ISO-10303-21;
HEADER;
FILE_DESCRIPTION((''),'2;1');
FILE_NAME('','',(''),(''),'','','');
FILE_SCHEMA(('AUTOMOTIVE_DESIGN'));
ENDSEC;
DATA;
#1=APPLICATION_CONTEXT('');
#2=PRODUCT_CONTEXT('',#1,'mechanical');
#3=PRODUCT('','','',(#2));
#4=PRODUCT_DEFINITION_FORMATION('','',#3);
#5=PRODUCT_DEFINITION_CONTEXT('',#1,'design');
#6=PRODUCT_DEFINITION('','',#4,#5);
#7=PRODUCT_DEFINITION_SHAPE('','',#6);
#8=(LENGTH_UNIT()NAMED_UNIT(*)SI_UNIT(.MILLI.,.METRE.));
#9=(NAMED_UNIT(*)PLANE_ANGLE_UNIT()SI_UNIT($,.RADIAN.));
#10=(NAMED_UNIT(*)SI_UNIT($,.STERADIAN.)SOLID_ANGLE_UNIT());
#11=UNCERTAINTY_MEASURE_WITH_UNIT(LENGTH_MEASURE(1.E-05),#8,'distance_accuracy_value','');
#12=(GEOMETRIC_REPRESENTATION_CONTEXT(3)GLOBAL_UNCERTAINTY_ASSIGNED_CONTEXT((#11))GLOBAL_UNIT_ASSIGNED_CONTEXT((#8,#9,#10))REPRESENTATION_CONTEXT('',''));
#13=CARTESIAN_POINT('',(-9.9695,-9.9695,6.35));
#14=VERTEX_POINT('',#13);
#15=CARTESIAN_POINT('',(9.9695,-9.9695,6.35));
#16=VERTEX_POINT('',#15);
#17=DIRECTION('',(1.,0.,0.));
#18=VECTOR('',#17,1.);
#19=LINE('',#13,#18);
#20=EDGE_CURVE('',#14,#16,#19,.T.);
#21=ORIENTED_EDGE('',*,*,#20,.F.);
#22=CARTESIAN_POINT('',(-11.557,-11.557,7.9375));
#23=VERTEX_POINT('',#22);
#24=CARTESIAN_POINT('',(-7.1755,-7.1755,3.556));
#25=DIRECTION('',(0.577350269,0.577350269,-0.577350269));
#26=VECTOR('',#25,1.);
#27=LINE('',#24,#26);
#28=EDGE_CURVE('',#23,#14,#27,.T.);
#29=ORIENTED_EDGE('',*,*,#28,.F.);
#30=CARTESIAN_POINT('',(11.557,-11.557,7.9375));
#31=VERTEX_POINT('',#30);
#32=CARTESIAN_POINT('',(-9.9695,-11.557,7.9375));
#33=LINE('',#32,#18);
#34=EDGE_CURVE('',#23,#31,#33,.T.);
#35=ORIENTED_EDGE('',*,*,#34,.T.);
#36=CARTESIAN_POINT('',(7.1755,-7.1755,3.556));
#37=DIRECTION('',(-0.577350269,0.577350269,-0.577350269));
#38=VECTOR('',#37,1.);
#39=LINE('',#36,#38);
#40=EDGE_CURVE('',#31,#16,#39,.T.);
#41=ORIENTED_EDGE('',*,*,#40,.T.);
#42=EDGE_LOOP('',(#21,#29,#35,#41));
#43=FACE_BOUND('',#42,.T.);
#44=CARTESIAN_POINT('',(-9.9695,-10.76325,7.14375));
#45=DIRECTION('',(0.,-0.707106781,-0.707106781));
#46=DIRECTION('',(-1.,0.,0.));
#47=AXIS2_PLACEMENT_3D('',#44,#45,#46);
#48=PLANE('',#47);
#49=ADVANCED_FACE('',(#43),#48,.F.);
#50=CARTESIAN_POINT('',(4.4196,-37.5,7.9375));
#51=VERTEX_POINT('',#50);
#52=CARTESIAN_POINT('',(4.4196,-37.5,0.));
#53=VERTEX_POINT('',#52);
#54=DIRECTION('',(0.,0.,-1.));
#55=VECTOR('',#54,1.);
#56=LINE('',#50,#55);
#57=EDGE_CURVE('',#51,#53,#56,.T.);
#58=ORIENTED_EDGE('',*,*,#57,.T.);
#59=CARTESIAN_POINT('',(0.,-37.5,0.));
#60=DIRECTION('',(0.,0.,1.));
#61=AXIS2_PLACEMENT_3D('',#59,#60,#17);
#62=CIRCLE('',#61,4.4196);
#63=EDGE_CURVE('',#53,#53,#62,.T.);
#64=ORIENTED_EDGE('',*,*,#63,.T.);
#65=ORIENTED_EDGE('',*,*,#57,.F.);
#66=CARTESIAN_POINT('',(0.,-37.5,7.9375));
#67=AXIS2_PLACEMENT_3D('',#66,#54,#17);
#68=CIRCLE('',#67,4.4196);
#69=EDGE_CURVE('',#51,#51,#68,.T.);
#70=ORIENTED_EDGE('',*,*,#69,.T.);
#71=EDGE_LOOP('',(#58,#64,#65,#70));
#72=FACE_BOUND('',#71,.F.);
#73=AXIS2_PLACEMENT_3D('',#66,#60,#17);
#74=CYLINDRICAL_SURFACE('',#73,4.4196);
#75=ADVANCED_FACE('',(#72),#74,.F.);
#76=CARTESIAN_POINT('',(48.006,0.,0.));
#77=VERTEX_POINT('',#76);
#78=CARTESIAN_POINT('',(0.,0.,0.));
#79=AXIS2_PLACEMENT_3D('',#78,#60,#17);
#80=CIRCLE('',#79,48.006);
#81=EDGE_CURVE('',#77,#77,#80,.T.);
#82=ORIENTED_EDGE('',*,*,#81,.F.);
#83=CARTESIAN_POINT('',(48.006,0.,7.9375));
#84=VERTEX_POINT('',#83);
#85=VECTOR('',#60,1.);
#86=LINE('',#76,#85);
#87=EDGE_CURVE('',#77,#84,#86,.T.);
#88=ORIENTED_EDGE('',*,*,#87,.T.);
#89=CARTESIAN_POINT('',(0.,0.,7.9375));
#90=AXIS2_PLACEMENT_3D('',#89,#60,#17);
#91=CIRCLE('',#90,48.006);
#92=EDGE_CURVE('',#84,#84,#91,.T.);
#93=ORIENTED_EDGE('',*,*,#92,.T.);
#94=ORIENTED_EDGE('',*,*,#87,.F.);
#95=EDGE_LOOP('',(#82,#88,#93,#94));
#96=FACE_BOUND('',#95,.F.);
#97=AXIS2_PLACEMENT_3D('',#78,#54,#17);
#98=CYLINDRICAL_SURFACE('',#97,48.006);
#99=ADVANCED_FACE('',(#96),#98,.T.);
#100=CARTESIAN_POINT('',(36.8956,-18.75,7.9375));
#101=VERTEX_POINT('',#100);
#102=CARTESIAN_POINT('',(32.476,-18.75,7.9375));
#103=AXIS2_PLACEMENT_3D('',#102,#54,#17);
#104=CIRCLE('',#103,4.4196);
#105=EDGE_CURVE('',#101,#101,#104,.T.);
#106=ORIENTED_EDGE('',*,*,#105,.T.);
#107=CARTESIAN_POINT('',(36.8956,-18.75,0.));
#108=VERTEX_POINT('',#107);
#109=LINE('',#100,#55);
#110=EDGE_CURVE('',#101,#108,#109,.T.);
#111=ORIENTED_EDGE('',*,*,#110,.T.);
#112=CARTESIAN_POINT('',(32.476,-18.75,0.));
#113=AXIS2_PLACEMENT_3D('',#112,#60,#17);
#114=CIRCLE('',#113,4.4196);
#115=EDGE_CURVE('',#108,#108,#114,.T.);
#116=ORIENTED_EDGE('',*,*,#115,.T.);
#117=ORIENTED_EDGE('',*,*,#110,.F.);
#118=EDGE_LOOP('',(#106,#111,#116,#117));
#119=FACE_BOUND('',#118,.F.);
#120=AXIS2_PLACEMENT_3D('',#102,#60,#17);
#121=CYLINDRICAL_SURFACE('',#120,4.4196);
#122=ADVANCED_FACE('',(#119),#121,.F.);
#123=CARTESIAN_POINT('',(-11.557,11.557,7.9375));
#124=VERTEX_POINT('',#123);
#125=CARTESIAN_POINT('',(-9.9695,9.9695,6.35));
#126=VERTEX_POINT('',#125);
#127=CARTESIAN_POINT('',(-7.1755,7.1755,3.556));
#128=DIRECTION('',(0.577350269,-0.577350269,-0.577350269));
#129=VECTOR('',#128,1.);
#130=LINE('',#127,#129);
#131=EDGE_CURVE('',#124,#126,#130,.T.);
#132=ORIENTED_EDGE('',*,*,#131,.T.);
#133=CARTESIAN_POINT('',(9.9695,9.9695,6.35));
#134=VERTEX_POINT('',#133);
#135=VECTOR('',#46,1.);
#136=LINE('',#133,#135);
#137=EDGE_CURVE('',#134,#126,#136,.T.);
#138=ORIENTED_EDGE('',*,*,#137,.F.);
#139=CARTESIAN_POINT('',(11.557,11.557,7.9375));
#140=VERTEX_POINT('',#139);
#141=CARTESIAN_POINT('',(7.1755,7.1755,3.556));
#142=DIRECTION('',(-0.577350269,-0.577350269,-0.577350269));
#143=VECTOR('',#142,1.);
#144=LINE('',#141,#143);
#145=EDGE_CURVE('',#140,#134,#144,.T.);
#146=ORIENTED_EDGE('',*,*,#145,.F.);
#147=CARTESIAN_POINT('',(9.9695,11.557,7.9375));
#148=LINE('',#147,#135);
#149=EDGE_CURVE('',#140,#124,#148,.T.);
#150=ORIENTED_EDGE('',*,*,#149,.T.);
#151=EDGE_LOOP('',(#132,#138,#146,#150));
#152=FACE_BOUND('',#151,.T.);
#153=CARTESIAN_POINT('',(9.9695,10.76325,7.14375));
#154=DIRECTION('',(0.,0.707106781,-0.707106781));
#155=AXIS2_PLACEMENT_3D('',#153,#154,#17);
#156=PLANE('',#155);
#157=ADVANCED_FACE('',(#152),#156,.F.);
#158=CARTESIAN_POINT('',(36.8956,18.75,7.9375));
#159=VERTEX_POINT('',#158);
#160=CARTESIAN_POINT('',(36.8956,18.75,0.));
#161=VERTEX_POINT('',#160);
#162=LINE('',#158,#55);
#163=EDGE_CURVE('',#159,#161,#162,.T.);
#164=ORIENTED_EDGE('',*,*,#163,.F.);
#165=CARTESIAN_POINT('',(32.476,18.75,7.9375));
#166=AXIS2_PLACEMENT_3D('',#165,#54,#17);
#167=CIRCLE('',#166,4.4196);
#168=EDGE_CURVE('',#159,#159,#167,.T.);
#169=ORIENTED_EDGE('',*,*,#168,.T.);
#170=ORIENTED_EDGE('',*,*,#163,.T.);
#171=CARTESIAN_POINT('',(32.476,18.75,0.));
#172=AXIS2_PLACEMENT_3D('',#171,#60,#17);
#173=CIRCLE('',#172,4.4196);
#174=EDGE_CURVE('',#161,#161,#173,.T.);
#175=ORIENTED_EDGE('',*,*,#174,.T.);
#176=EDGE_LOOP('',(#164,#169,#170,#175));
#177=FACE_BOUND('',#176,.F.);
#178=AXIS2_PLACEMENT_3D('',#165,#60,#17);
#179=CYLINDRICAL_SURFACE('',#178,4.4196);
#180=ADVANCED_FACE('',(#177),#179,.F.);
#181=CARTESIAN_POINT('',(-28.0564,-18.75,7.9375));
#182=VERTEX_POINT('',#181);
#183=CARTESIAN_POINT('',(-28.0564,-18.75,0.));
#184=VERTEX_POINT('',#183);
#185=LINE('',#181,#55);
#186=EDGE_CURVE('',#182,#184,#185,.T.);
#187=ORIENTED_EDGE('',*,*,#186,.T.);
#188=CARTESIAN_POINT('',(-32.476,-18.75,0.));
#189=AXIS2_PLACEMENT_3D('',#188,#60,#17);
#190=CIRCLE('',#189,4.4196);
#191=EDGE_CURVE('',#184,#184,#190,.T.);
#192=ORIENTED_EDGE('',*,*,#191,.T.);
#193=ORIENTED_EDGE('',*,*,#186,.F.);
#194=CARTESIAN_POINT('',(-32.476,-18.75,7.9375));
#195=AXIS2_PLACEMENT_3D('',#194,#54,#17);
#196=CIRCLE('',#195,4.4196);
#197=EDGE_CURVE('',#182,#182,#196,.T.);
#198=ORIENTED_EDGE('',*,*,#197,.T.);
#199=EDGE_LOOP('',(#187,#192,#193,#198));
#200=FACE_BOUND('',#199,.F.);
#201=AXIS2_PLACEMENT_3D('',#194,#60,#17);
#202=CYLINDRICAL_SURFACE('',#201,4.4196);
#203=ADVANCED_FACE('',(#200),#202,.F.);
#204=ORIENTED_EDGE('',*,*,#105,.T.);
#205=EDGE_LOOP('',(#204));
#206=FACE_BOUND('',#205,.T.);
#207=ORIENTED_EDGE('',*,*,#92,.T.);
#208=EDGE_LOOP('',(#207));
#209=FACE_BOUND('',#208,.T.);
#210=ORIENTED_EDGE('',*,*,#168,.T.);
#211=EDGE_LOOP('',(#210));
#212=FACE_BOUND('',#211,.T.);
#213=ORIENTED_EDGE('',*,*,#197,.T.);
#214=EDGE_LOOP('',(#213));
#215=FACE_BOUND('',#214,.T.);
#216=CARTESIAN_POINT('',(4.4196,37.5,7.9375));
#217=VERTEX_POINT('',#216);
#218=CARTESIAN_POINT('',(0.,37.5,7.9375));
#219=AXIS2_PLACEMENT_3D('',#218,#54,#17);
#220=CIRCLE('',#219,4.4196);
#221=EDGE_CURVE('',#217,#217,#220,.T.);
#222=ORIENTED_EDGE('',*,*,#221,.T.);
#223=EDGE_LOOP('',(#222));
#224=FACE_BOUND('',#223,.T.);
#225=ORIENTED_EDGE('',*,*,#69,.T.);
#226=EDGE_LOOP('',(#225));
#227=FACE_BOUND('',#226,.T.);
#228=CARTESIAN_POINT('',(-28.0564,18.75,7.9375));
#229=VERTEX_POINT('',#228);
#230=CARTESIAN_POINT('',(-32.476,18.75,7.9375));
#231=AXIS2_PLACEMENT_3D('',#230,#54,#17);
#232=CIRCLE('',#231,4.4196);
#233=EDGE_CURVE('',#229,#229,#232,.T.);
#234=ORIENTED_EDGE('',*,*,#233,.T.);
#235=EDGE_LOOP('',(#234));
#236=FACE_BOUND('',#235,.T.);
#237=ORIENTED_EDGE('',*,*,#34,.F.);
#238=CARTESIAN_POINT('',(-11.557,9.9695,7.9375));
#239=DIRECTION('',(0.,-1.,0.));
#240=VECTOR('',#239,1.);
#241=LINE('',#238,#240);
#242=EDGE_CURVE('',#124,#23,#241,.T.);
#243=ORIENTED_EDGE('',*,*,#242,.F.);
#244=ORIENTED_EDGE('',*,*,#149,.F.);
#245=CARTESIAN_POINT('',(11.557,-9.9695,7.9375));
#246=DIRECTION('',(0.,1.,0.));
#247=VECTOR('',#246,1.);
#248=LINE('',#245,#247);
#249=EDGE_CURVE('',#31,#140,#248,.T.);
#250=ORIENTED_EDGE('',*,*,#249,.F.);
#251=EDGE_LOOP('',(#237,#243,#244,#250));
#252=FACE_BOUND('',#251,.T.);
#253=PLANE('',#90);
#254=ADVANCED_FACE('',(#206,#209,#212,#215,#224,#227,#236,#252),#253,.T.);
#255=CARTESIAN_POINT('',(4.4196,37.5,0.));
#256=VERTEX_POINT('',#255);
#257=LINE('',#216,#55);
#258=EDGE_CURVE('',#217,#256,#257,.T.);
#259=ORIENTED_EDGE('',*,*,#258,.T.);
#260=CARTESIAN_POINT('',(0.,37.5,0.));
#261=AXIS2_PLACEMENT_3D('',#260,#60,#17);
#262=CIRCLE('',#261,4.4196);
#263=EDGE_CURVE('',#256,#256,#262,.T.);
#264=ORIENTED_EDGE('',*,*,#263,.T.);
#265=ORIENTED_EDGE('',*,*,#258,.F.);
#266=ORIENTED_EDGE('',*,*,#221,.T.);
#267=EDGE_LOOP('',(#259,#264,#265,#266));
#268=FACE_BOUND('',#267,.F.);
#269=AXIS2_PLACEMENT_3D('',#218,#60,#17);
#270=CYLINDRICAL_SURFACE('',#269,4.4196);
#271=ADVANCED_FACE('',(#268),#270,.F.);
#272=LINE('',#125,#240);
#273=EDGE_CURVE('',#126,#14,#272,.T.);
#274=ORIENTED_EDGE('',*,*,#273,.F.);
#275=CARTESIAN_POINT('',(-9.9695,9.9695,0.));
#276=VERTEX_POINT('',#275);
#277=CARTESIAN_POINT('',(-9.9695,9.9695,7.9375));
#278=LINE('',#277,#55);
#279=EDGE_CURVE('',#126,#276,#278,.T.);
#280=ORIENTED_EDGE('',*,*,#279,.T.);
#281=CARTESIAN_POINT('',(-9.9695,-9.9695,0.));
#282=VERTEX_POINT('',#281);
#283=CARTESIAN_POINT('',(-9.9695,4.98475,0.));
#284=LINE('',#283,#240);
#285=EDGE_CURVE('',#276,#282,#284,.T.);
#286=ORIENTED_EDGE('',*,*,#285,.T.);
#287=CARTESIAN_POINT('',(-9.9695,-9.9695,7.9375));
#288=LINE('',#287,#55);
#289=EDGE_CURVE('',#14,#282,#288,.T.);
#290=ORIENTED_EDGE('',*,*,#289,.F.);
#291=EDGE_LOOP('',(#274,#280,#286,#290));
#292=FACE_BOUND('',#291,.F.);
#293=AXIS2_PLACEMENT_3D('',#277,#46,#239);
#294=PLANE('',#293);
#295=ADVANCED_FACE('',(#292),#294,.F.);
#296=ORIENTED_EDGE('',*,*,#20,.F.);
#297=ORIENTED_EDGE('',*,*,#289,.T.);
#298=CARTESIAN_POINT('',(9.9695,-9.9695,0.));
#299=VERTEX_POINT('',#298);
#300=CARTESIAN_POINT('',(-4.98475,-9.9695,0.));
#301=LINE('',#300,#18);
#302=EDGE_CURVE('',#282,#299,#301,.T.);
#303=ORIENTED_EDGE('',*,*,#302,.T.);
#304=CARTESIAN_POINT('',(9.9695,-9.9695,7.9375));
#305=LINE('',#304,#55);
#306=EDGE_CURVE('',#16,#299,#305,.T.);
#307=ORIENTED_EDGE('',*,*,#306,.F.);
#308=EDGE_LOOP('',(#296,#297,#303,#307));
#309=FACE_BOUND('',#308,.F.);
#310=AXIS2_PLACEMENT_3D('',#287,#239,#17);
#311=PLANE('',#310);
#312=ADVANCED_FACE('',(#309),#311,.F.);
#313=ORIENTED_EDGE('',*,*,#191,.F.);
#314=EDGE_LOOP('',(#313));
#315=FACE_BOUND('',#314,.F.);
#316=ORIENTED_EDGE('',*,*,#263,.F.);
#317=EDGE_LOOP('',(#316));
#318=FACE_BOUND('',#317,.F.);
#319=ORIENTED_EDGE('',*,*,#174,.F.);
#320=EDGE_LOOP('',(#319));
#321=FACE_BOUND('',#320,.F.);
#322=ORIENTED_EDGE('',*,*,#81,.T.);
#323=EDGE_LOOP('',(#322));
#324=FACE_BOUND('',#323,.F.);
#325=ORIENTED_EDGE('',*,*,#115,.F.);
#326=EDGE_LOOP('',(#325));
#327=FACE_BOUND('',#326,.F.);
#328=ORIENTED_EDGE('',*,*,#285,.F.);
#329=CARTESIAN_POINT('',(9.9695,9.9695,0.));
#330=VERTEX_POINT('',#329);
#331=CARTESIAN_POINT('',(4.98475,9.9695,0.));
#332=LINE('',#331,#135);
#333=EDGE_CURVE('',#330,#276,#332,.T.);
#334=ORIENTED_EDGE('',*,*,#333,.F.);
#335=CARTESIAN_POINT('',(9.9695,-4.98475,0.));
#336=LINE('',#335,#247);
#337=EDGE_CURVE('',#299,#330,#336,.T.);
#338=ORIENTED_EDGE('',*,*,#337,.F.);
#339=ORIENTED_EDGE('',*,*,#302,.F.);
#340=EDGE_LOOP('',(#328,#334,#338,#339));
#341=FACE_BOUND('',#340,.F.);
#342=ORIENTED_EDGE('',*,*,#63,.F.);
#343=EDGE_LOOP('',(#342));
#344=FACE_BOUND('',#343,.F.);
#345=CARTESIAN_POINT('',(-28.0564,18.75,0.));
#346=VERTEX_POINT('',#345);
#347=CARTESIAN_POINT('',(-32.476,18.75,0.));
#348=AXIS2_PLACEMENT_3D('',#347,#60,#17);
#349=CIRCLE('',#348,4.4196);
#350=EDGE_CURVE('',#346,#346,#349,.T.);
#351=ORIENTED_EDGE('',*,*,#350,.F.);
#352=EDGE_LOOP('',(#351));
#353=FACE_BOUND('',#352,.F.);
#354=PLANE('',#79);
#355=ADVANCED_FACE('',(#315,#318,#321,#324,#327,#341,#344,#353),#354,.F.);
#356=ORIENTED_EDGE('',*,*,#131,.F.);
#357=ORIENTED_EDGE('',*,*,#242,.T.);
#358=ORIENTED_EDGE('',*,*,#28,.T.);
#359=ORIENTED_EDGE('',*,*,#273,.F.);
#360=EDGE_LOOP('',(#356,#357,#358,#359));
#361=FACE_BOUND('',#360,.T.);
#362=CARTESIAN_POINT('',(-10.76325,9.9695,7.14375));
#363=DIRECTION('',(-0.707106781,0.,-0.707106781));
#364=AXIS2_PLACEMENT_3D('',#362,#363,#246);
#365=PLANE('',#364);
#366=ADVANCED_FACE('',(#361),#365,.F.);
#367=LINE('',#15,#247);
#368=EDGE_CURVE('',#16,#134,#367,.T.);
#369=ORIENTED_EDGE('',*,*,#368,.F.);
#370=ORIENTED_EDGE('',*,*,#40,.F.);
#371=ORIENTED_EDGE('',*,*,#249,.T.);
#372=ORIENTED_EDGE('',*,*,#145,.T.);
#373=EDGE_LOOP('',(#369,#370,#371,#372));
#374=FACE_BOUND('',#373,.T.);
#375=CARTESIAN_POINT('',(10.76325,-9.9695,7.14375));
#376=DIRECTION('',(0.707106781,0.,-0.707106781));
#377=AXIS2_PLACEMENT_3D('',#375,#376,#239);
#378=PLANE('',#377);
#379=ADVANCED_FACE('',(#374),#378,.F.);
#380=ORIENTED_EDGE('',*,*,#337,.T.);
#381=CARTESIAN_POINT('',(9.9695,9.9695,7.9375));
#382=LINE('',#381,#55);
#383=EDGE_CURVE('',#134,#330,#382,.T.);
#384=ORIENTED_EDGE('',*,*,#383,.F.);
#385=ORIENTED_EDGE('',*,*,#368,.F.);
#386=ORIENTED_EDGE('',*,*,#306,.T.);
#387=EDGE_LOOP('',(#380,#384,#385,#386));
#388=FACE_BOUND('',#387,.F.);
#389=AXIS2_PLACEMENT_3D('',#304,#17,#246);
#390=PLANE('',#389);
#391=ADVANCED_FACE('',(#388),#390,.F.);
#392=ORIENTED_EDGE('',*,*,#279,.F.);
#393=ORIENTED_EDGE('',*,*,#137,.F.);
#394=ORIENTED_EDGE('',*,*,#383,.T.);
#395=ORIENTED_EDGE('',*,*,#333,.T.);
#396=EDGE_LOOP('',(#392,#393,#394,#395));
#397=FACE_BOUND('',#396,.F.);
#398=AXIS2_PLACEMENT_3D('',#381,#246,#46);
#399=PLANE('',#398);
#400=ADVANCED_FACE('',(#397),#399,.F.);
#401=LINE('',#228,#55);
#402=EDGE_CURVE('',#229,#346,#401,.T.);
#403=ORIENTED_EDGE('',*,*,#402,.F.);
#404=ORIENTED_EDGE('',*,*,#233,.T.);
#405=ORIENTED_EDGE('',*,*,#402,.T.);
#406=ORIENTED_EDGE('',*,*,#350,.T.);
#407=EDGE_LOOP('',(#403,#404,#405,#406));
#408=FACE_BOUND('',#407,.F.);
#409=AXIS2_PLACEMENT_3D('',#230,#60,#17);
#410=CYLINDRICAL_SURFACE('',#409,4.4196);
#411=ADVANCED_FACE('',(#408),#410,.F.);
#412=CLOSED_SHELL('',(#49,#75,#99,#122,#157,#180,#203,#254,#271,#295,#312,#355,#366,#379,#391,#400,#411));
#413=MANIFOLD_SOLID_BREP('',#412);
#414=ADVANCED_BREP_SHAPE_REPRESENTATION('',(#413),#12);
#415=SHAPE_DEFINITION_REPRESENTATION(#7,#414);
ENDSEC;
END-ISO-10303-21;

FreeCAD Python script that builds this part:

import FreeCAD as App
import Part
import Sketcher
from FreeCAD import Vector
Q = App.Units.Quantity


def edges_at(feature, points):
    """Names of the edges that pass closest to the given points."""
    edges = feature.Shape.Edges
    near = lambda p: min(range(len(edges)), key=lambda i: edges[i].distToShape(Part.Vertex(*p))[0])
    return sorted({f"Edge{near(p) + 1}" for p in points})


def add_polygon(sketch, points):
    """Adds a closed chain of lines whose ends are joined by coincident constraints."""
    first, n = sketch.GeometryCount, len(points)
    for a, b in zip(points, points[1:] + points[:1]):
        sketch.addGeometry(Part.LineSegment(App.Vector(*a, 0), App.Vector(*b, 0)), False)
    for i in range(n):
        sketch.addConstraint(Sketcher.Constraint("Coincident", first + i, 2, first + (i + 1) % n, 1))

doc = App.newDocument("Part")
body = doc.addObject("PartDesign::Body", "Body")

sketch1 = body.newObject("Sketcher::SketchObject", "Sketch")
sketch1.AttachmentSupport = (doc.getObject("XY_Plane"), [""])
sketch1.MapMode = "FlatFace"
sketch1.addGeometry(Part.Circle(Vector(0, 0, 0), Vector(0, 0, 1), 48), False)
sketch1.addConstraint([
    Sketcher.Constraint("Coincident", 0, 3, -1, 1),
    Sketcher.Constraint("Diameter", 0, Q("3.78 in")),
])
pad1 = body.newObject("PartDesign::Pad", "Pad")
pad1.Profile = sketch1
pad1.Length = Q("0.3125 in")

sketch2 = body.newObject("Sketcher::SketchObject", "Sketch001")
sketch2.AttachmentSupport = (doc.getObject("XY_Plane"), [""])
sketch2.MapMode = "FlatFace"
sketch2.AttachmentOffset = App.Placement(Vector(0, 0, 0.3125 * 25.4), App.Rotation())
sketch2.addGeometry([
    Part.Circle(Vector(0, 37.5, 0), Vector(0, 0, 1), 4.4),
    Part.Circle(Vector(-32.5, 18.8, 0), Vector(0, 0, 1), 4.4),
    Part.Circle(Vector(32.5, 18.8, 0), Vector(0, 0, 1), 4.4),
    Part.Circle(Vector(-32.5, -18.8, 0), Vector(0, 0, 1), 4.4),
    Part.Circle(Vector(32.5, -18.8, 0), Vector(0, 0, 1), 4.4),
    Part.Circle(Vector(0, -37.5, 0), Vector(0, 0, 1), 4.4),
], False)
sketch2.addConstraint([
    Sketcher.Constraint("Equal", 0, 1),
    Sketcher.Constraint("Equal", 1, 2),
    Sketcher.Constraint("Equal", 2, 3),
    Sketcher.Constraint("Equal", 3, 4),
    Sketcher.Constraint("Equal", 4, 5),
    Sketcher.Constraint("Symmetric", 2, 3, 3, 3, -1, 1),
    Sketcher.Constraint("Symmetric", 1, 3, 4, 3, -1, 1),
    Sketcher.Constraint("Symmetric", 0, 3, 5, 3, -1, 1),
    Sketcher.Constraint("Symmetric", 1, 3, 2, 3, -2),
    Sketcher.Constraint("PointOnObject", 0, 3, -2),
    Sketcher.Constraint("Diameter", 0, Q("0.348 in")),
    Sketcher.Constraint("DistanceY", 5, 3, 0, 3, 75.0),
    Sketcher.Constraint("DistanceY", -1, 1, 1, 3, Q("0.7382 in")),
    Sketcher.Constraint("DistanceX", 1, 3, -1, 1, 32.476),
])
pocket1 = body.newObject("PartDesign::Pocket", "Pocket")
pocket1.Profile = sketch2
pocket1.Type = "ThroughAll"

sketch3 = body.newObject("Sketcher::SketchObject", "Sketch002")
sketch3.AttachmentSupport = (doc.getObject("XY_Plane"), [""])
sketch3.MapMode = "FlatFace"
sketch3.AttachmentOffset = App.Placement(Vector(0, 0, 0.3125 * 25.4), App.Rotation())
add_polygon(sketch3, [(-10, 10), (-10, -10), (10, -10), (10, 10)])
sketch3.addConstraint([
    Sketcher.Constraint("Vertical", 0),
    Sketcher.Constraint("Horizontal", 1),
    Sketcher.Constraint("Vertical", 2),
    Sketcher.Constraint("Horizontal", 3),
    Sketcher.Constraint("Symmetric", 0, 2, 2, 2, -1, 1),
    Sketcher.Constraint("Equal", 3, 0),
    Sketcher.Constraint("DistanceX", 1, 1, 1, 2, Q("0.785 in")),
])
pocket2 = body.newObject("PartDesign::Pocket", "Pocket001")
pocket2.Profile = sketch3
pocket2.Type = "ThroughAll"
doc.recompute()

chamfer = body.newObject("PartDesign::Chamfer", "Chamfer")
chamfer.Base = (pocket2, edges_at(pocket2, [
    (0, 9.97, 7.938),
    (-9.97, 0, 7.938),
    (0, -9.97, 7.938),
    (9.97, 0, 7.938),
]))
chamfer.Size = Q("0.0625 in")

doc.recompute()
